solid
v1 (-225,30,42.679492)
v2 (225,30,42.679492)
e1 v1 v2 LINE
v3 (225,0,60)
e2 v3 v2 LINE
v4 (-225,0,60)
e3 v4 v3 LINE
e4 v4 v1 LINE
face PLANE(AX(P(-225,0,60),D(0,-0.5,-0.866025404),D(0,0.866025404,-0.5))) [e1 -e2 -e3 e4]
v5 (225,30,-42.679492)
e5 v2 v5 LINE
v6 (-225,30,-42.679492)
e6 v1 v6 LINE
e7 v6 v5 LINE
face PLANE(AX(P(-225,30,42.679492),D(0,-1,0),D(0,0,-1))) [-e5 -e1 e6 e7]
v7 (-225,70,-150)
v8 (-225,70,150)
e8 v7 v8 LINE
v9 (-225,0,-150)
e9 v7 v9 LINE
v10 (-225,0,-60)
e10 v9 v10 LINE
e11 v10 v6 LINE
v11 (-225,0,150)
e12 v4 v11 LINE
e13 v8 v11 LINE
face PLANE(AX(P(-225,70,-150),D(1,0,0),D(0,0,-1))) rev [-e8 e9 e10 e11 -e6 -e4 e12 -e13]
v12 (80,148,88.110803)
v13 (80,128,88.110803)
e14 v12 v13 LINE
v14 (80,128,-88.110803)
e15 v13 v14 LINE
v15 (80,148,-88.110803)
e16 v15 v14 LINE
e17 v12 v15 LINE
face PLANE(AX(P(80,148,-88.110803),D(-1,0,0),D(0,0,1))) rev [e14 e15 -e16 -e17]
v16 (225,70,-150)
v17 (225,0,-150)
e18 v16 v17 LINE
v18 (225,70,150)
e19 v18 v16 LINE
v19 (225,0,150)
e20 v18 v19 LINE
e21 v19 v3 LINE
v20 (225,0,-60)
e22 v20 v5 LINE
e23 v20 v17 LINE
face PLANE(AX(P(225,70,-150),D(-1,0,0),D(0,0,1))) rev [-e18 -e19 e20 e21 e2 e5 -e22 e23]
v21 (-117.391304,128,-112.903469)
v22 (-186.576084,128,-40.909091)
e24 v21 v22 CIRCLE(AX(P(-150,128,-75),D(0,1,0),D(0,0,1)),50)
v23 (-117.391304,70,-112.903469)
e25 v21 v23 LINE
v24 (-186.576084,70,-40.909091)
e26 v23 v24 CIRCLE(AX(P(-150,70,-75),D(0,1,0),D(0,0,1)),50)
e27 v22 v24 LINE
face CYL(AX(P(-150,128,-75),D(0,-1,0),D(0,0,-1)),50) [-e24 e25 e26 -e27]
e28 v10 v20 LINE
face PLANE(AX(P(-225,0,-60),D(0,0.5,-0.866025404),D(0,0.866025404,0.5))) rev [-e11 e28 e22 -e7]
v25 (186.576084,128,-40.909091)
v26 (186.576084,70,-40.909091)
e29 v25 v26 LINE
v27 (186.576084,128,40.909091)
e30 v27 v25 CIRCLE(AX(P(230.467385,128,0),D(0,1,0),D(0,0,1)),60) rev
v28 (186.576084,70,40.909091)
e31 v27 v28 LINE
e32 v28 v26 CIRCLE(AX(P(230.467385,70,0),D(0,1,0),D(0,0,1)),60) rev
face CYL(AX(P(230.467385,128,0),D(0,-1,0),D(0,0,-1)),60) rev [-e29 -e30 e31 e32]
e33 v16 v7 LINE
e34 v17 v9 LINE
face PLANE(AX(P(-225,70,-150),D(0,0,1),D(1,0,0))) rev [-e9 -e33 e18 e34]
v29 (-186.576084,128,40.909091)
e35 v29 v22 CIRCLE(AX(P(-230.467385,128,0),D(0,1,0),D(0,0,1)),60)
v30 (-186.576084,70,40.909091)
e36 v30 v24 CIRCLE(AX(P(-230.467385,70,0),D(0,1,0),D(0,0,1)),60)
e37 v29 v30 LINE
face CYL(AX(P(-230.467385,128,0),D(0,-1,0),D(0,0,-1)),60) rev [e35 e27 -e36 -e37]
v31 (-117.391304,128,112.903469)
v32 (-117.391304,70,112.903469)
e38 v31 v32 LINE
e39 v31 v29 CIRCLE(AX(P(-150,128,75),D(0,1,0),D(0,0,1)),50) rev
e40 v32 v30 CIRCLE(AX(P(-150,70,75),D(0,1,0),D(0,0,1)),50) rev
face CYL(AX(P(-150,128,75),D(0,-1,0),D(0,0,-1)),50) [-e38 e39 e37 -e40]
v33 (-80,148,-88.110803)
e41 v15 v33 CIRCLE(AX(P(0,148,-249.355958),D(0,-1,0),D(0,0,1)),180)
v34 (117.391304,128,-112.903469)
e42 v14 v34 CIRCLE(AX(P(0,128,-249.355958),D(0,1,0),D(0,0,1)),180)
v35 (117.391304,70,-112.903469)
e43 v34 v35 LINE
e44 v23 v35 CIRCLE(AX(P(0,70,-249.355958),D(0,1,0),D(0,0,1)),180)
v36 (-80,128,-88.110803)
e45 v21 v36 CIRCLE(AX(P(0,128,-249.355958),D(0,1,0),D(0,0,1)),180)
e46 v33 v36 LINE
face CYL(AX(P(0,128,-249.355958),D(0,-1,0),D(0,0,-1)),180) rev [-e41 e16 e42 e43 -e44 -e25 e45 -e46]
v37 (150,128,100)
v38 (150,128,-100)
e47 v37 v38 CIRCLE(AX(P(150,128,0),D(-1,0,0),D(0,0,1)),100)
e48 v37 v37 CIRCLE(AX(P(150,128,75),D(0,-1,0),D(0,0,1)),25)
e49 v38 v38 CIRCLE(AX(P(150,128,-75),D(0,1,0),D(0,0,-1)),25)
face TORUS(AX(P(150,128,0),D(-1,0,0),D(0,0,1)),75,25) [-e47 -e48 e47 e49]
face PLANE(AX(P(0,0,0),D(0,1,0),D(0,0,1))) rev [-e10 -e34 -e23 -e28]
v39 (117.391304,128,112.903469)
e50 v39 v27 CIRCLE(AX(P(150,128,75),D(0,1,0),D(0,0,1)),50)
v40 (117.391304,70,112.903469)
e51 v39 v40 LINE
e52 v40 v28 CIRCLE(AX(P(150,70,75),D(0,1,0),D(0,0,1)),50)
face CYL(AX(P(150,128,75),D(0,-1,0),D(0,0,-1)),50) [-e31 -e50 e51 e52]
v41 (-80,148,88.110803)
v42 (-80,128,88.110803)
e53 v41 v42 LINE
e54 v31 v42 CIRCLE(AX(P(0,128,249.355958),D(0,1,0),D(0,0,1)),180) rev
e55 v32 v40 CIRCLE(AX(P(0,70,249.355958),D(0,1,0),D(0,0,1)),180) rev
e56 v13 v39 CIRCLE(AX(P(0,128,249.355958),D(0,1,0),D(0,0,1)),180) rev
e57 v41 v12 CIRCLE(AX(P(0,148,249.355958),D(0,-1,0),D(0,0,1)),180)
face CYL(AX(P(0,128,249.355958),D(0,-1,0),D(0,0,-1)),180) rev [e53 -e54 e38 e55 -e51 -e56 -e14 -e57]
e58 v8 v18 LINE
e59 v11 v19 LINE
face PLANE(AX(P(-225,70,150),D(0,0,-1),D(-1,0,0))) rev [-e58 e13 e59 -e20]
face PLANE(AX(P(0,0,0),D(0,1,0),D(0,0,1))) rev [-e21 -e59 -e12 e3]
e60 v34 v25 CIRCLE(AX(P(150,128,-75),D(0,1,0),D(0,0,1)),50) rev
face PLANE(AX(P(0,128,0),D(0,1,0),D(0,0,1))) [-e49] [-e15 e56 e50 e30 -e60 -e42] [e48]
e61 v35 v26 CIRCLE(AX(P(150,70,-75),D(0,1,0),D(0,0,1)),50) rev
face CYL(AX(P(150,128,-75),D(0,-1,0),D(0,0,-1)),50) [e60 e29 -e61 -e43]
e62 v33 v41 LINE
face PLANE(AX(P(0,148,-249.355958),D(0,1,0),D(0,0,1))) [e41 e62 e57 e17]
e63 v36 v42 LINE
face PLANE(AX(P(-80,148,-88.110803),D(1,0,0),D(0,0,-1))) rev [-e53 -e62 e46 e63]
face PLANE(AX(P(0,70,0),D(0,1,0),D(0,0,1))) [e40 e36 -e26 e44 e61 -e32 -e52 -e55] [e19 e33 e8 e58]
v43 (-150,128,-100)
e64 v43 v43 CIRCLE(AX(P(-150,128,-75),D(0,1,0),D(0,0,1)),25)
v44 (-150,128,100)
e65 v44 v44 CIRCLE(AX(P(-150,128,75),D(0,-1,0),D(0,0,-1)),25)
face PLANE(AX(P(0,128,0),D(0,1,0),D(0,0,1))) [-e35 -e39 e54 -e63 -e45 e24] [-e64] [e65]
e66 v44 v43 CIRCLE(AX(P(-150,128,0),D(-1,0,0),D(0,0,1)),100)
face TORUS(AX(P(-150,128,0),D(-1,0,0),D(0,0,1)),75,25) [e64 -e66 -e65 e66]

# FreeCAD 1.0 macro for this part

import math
import FreeCAD as App
import Part
import Sketcher
from FreeCAD import Vector
Q = App.Units.Quantity

doc = App.newDocument("Part")
params = doc.addObject("Spreadsheet::Sheet", "Params")
for row, (alias, value) in enumerate([
    ("sketch1_width", "450 mm"),
    ("sketch1_height", "300 mm"),
    ("pad1_length", "70 mm"),
    ("sketch2_height", "120 mm"),
    ("sketch3_radius", "180 mm"),
    ("sketch3_radius2", "50 mm"),
    ("sketch3_radius3", "60 mm"),
    ("pad2_length", "58 mm"),
    ("sketch4_radius", "180 mm"),
    ("pad3_length", "20 mm"),
    ("sketch5_diameter", "50 mm"),
    ("revolution_angle", "180 deg"),
], start=1):
    params.set(f"A{row}", alias)
    params.set(f"B{row}", "=" + value)
    params.setAlias(f"B{row}", alias)

body = doc.addObject("PartDesign::Body", "Body")

sketch1 = body.newObject("Sketcher::SketchObject", "Sketch")
sketch1.AttachmentSupport = (doc.getObject("XZ_Plane"), [""])
sketch1.MapMode = "FlatFace"
sketch1.addGeometry(Part.LineSegment(Vector(-225, -150, 0), Vector(-225, 150, 0)), False)
sketch1.addGeometry(Part.LineSegment(Vector(-225, 150, 0), Vector(225, 150, 0)), False)
sketch1.addGeometry(Part.LineSegment(Vector(225, 150, 0), Vector(225, -150, 0)), False)
sketch1.addGeometry(Part.LineSegment(Vector(225, -150, 0), Vector(-225, -150, 0)), False)
sketch1.addConstraint(Sketcher.Constraint("Coincident", 0, 2, 1, 1))
sketch1.addConstraint(Sketcher.Constraint("Coincident", 1, 2, 2, 1))
sketch1.addConstraint(Sketcher.Constraint("Coincident", 2, 2, 3, 1))
sketch1.addConstraint(Sketcher.Constraint("Coincident", 3, 2, 0, 1))
sketch1.addConstraint(Sketcher.Constraint("Vertical", 0))
sketch1.addConstraint(Sketcher.Constraint("Horizontal", 1))
sketch1.addConstraint(Sketcher.Constraint("Vertical", 2))
sketch1.addConstraint(Sketcher.Constraint("Horizontal", 3))
sketch1.addConstraint(Sketcher.Constraint("Symmetric", 0, 2, 2, 2, -1, 1))
sketch1.addConstraint(Sketcher.Constraint("DistanceX", 1, 1, 1, 2, 450.0))
sketch1.addConstraint(Sketcher.Constraint("DistanceY", 0, 1, 0, 2, 300.0))
sketch1.setExpression("Constraints[9]", "Params.sketch1_width")
sketch1.setExpression("Constraints[10]", "Params.sketch1_height")
pad1 = body.newObject("PartDesign::Pad", "Pad")
pad1.Profile = sketch1
pad1.setExpression("Length", "Params.pad1_length")
pad1.Reversed = True

sketch2 = body.newObject("Sketcher::SketchObject", "Sketch001")
sketch2.AttachmentSupport = (doc.getObject("YZ_Plane"), [""])
sketch2.MapMode = "FlatFace"
sketch2.AttachmentOffset = App.Placement(Vector(0, 0, 225), App.Rotation())
sketch2.addGeometry(Part.LineSegment(Vector(30, 43, 0), Vector(0, 60, 0)), False)
sketch2.addGeometry(Part.LineSegment(Vector(0, 60, 0), Vector(0, -60, 0)), False)
sketch2.addGeometry(Part.LineSegment(Vector(0, -60, 0), Vector(30, -43, 0)), False)
sketch2.addGeometry(Part.LineSegment(Vector(30, -43, 0), Vector(30, 43, 0)), False)
sketch2.addConstraint(Sketcher.Constraint("Coincident", 0, 2, 1, 1))
sketch2.addConstraint(Sketcher.Constraint("Coincident", 1, 2, 2, 1))
sketch2.addConstraint(Sketcher.Constraint("Coincident", 2, 2, 3, 1))
sketch2.addConstraint(Sketcher.Constraint("Coincident", 3, 2, 0, 1))
sketch2.addConstraint(Sketcher.Constraint("Vertical", 1))
sketch2.addConstraint(Sketcher.Constraint("Vertical", 3))
sketch2.addConstraint(Sketcher.Constraint("Symmetric", 0, 2, 1, 2, -1, 1))
sketch2.addConstraint(Sketcher.Constraint("Equal", 0, 2))
sketch2.addConstraint(Sketcher.Constraint("DistanceY", 1, 2, 1, 1, 120.0))
sketch2.addConstraint(Sketcher.Constraint("Angle", 0, Q("150 deg")))
sketch2.addConstraint(Sketcher.Constraint("DistanceX", -1, 1, 2, 2, 30.0))
sketch2.setExpression("Constraints[8]", "Params.sketch2_height")
pocket1 = body.newObject("PartDesign::Pocket", "Pocket")
pocket1.Profile = sketch2
pocket1.Type = "ThroughAll"

sketch3 = body.newObject("Sketcher::SketchObject", "Sketch002")
sketch3.AttachmentSupport = (doc.getObject("XZ_Plane"), [""])
sketch3.MapMode = "FlatFace"
sketch3.AttachmentOffset = App.Placement(Vector(0, 0, -70), App.Rotation())
sketch3.addGeometry(Part.ArcOfCircle(Part.Circle(Vector(0, 249, 0), Vector(0, 0, 1), 180), math.radians(-130.71), math.radians(-116.39)), False)
sketch3.addGeometry(Part.ArcOfCircle(Part.Circle(Vector(0, 249, 0), Vector(0, 0, 1), 180), math.radians(-116), math.radians(-64)), False)
sketch3.addGeometry(Part.ArcOfCircle(Part.Circle(Vector(0, 249, 0), Vector(0, 0, 1), 180), math.radians(-63.61), math.radians(-49.29)), False)
sketch3.addGeometry(Part.ArcOfCircle(Part.Circle(Vector(150, 75, 0), Vector(0, 0, 1), 50), math.radians(-43), math.radians(131)), False)
sketch3.addGeometry(Part.ArcOfCircle(Part.Circle(Vector(230, 0, 0), Vector(0, 0, 1), 60), math.radians(137), math.radians(223)), False)
sketch3.addGeometry(Part.ArcOfCircle(Part.Circle(Vector(150, -75, 0), Vector(0, 0, 1), 50), math.radians(-131), math.radians(43)), False)
sketch3.addGeometry(Part.ArcOfCircle(Part.Circle(Vector(0, -249, 0), Vector(0, 0, 1), 180), math.radians(49.29), math.radians(63.61)), False)
sketch3.addGeometry(Part.ArcOfCircle(Part.Circle(Vector(0, -249, 0), Vector(0, 0, 1), 180), math.radians(64), math.radians(116)), False)
sketch3.addGeometry(Part.ArcOfCircle(Part.Circle(Vector(0, -249, 0), Vector(0, 0, 1), 180), math.radians(116.39), math.radians(130.71)), False)
sketch3.addGeometry(Part.ArcOfCircle(Part.Circle(Vector(-150, -75, 0), Vector(0, 0, 1), 50), math.radians(137), math.radians(311)), False)
sketch3.addGeometry(Part.ArcOfCircle(Part.Circle(Vector(-230, 0, 0), Vector(0, 0, 1), 60), math.radians(-43), math.radians(43)), False)
sketch3.addGeometry(Part.ArcOfCircle(Part.Circle(Vector(-150, 75, 0), Vector(0, 0, 1), 50), math.radians(49), math.radians(223)), False)
sketch3.addConstraint(Sketcher.Constraint("Tangent", 0, 2, 1, 1))
sketch3.addConstraint(Sketcher.Constraint("Tangent", 1, 2, 2, 1))
sketch3.addConstraint(Sketcher.Constraint("Tangent", 2, 2, 3, 2))
sketch3.addConstraint(Sketcher.Constraint("Tangent", 3, 1, 4, 1))
sketch3.addConstraint(Sketcher.Constraint("Tangent", 4, 2, 5, 2))
sketch3.addConstraint(Sketcher.Constraint("Tangent", 5, 1, 6, 1))
sketch3.addConstraint(Sketcher.Constraint("Tangent", 6, 2, 7, 1))
sketch3.addConstraint(Sketcher.Constraint("Tangent", 7, 2, 8, 1))
sketch3.addConstraint(Sketcher.Constraint("Tangent", 8, 2, 9, 2))
sketch3.addConstraint(Sketcher.Constraint("Tangent", 9, 1, 10, 1))
sketch3.addConstraint(Sketcher.Constraint("Tangent", 10, 2, 11, 2))
sketch3.addConstraint(Sketcher.Constraint("Tangent", 11, 1, 0, 1))
sketch3.addConstraint(Sketcher.Constraint("Coincident", 2, 3, 0, 3))
sketch3.addConstraint(Sketcher.Constraint("Coincident", 8, 3, 6, 3))
sketch3.addConstraint(Sketcher.Constraint("Equal", 3, 5))
sketch3.addConstraint(Sketcher.Constraint("Equal", 2, 6))
sketch3.addConstraint(Sketcher.Constraint("Equal", 5, 9))
sketch3.addConstraint(Sketcher.Constraint("Equal", 4, 10))
sketch3.addConstraint(Sketcher.Constraint("Equal", 9, 11))
sketch3.addConstraint(Sketcher.Constraint("Symmetric", 0, 3, 6, 3, -1, 1))
sketch3.addConstraint(Sketcher.Constraint("Symmetric", 4, 3, 10, 3, -1, 1))
sketch3.addConstraint(Sketcher.Constraint("Symmetric", 5, 3, 9, 3, -2))
sketch3.addConstraint(Sketcher.Constraint("Horizontal", 0, 2, 1, 2))
sketch3.addConstraint(Sketcher.Constraint("Horizontal", 6, 2, 7, 2))
sketch3.addConstraint(Sketcher.Constraint("Vertical", 1, 2, 6, 2))
sketch3.addConstraint(Sketcher.Constraint("Radius", 0, 180.0))
sketch3.addConstraint(Sketcher.Constraint("Radius", 3, 50.0))
sketch3.addConstraint(Sketcher.Constraint("Radius", 4, 60.0))
sketch3.addConstraint(Sketcher.Constraint("DistanceX", -1, 1, 3, 3, 150.0))
sketch3.addConstraint(Sketcher.Constraint("DistanceY", -1, 1, 3, 3, 75.0))
sketch3.addConstraint(Sketcher.Constraint("DistanceX", 0, 2, -1, 1, 80.0))
sketch3.setExpression("Constraints[25]", "Params.sketch3_radius")
sketch3.setExpression("Constraints[26]", "Params.sketch3_radius2")
sketch3.setExpression("Constraints[27]", "Params.sketch3_radius3")
pad2 = body.newObject("PartDesign::Pad", "Pad001")
pad2.Profile = sketch3
pad2.setExpression("Length", "Params.pad2_length")
pad2.Reversed = True

sketch4 = body.newObject("Sketcher::SketchObject", "Sketch003")
sketch4.AttachmentSupport = (doc.getObject("XZ_Plane"), [""])
sketch4.MapMode = "FlatFace"
sketch4.AttachmentOffset = App.Placement(Vector(0, 0, -128), App.Rotation())
sketch4.addGeometry(Part.LineSegment(Vector(-80, -88, 0), Vector(-80, 88, 0)), False)
sketch4.addGeometry(Part.ArcOfCircle(Part.Circle(Vector(0, 249, 0), Vector(0, 0, 1), 180), math.radians(-116), math.radians(-64)), False)
sketch4.addGeometry(Part.LineSegment(Vector(80, 88, 0), Vector(80, -88, 0)), False)
sketch4.addGeometry(Part.ArcOfCircle(Part.Circle(Vector(0, -249, 0), Vector(0, 0, 1), 180), math.radians(64), math.radians(116)), False)
sketch4.addConstraint(Sketcher.Constraint("Coincident", 0, 2, 1, 1))
sketch4.addConstraint(Sketcher.Constraint("Coincident", 1, 2, 2, 1))
sketch4.addConstraint(Sketcher.Constraint("Coincident", 2, 2, 3, 1))
sketch4.addConstraint(Sketcher.Constraint("Coincident", 3, 2, 0, 1))
sketch4.addConstraint(Sketcher.Constraint("Vertical", 0))
sketch4.addConstraint(Sketcher.Constraint("Vertical", 2))
sketch4.addConstraint(Sketcher.Constraint("Equal", 1, 3))
sketch4.addConstraint(Sketcher.Constraint("Symmetric", 1, 3, 3, 3, -1, 1))
sketch4.addConstraint(Sketcher.Constraint("Symmetric", 0, 2, 1, 2, -2))
sketch4.addConstraint(Sketcher.Constraint("Radius", 1, 180.0))
sketch4.addConstraint(Sketcher.Constraint("DistanceX", 0, 2, -1, 1, 80.0))
sketch4.addConstraint(Sketcher.Constraint("DistanceY", 0, 1, 0, 2, 176.221606))
sketch4.setExpression("Constraints[9]", "Params.sketch4_radius")
pad3 = body.newObject("PartDesign::Pad", "Pad002")
pad3.Profile = sketch4
pad3.setExpression("Length", "Params.pad3_length")
pad3.Reversed = True

sketch5 = body.newObject("Sketcher::SketchObject", "Sketch004")
sketch5.AttachmentSupport = (doc.getObject("XZ_Plane"), [""])
sketch5.MapMode = "FlatFace"
sketch5.AttachmentOffset = App.Placement(Vector(0, 0, -128), App.Rotation())
sketch5.addGeometry(Part.Circle(Vector(-150, -75, 0), Vector(0, 0, 1), 25), False)
sketch5.addGeometry(Part.Circle(Vector(150, -75, 0), Vector(0, 0, 1), 25), False)
sketch5.addConstraint(Sketcher.Constraint("Equal", 0, 1))
sketch5.addConstraint(Sketcher.Constraint("Symmetric", 0, 3, 1, 3, -2))
sketch5.addConstraint(Sketcher.Constraint("Diameter", 0, 50.0))
sketch5.addConstraint(Sketcher.Constraint("DistanceX", 0, 3, -1, 1, 150.0))
sketch5.addConstraint(Sketcher.Constraint("DistanceY", 0, 3, -1, 1, 75.0))
sketch5.setExpression("Constraints[2]", "Params.sketch5_diameter")
revolution = body.newObject("PartDesign::Revolution", "Revolution")
revolution.Profile = sketch5
revolution.ReferenceAxis = (sketch5, ["H_Axis"])
revolution.setExpression("Angle", "Params.revolution_angle")

doc.recompute()
